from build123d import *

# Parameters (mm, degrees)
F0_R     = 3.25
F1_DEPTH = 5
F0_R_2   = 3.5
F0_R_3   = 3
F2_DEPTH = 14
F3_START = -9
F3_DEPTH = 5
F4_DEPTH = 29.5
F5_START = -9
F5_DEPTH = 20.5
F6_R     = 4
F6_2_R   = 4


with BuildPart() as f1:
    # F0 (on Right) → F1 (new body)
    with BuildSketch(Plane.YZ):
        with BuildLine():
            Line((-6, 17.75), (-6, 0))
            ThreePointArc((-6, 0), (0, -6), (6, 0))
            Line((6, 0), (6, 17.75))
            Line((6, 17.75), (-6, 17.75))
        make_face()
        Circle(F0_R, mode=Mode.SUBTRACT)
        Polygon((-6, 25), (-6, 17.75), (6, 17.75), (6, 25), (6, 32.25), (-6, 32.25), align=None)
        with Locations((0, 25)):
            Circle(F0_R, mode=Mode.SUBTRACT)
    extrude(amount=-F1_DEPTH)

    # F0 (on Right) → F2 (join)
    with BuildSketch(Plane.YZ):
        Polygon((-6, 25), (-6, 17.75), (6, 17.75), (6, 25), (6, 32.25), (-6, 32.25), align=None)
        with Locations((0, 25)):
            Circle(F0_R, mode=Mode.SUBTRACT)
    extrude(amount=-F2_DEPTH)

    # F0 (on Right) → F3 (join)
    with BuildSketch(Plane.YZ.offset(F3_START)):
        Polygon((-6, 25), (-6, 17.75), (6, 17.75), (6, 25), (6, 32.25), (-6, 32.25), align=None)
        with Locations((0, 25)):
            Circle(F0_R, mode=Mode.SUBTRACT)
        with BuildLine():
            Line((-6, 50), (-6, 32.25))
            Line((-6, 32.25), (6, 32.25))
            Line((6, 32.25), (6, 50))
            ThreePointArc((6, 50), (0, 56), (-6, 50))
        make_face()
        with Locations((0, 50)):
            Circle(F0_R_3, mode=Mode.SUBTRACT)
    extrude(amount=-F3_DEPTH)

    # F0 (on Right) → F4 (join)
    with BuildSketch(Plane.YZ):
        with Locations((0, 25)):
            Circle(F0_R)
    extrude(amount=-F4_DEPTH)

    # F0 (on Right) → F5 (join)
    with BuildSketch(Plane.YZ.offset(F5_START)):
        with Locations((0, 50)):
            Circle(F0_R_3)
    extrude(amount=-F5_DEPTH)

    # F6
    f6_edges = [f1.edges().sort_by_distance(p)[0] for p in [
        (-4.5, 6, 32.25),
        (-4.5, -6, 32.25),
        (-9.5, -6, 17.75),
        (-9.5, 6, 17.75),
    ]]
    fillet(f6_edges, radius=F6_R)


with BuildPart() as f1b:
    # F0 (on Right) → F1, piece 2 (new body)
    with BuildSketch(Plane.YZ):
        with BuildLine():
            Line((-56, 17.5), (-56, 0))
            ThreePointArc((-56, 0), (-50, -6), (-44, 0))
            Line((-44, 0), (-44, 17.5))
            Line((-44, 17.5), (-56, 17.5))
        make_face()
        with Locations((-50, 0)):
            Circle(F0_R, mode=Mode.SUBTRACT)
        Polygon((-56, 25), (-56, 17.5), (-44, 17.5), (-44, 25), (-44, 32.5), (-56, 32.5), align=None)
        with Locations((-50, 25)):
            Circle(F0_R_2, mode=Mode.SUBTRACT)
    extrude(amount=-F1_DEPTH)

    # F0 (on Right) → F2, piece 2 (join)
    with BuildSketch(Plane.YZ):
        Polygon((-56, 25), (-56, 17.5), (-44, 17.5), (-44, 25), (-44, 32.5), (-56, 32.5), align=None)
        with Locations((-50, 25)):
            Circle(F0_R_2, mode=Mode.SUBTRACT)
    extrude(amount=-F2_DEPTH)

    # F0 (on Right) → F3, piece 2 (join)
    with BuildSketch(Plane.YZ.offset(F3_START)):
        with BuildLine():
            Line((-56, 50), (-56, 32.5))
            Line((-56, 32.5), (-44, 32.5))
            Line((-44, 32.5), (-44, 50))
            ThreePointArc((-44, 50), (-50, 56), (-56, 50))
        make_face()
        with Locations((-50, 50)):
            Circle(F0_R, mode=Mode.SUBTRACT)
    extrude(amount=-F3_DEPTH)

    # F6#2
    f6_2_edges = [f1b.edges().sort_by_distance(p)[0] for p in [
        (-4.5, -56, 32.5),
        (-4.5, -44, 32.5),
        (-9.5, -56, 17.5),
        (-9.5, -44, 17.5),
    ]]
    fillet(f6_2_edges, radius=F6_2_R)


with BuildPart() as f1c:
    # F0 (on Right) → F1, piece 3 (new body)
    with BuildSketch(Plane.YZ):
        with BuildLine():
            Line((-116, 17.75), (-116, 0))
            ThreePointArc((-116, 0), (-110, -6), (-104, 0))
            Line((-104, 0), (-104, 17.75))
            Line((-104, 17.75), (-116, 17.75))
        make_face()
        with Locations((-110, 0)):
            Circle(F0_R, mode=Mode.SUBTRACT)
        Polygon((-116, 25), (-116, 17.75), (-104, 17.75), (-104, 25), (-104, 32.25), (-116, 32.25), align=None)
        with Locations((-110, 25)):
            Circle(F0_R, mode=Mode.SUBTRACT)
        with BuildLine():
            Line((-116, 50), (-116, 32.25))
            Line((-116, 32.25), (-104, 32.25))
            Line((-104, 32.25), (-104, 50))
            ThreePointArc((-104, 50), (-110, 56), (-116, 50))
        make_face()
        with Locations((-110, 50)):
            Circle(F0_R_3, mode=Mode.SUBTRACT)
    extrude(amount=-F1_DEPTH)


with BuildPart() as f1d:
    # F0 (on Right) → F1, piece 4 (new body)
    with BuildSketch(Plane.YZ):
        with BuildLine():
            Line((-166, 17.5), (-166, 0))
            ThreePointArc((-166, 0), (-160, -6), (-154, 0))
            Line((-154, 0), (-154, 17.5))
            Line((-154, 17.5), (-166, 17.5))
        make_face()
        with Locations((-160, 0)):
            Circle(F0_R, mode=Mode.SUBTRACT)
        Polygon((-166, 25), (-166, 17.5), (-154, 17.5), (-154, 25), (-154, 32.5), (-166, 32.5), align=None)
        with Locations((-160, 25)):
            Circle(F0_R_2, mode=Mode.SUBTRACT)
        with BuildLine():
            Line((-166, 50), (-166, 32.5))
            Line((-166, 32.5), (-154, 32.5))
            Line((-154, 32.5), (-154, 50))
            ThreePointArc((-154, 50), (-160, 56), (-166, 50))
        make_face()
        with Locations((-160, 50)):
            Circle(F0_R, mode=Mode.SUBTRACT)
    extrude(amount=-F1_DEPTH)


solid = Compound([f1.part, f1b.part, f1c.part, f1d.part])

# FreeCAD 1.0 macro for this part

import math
import FreeCAD as App
import Part
import Sketcher
from FreeCAD import Vector
Q = App.Units.Quantity


def edges_at(feature, points):
    """Names of the edges that pass closest to the given points."""
    edges = feature.Shape.Edges
    near = lambda p: min(range(len(edges)), key=lambda i: edges[i].distToShape(Part.Vertex(*p))[0])
    return sorted({f"Edge{near(p) + 1}" for p in points})

doc = App.newDocument("Part")
body = doc.addObject("PartDesign::Body", "Body")

# Sketch on YZ plane
sketch1 = body.newObject("Sketcher::SketchObject", "Sketch")
sketch1.AttachmentSupport = (doc.getObject("YZ_Plane"), [""])
sketch1.MapMode = "FlatFace"
sketch1.addGeometry(Part.ArcOfCircle(Part.Circle(Vector(0, 0, 0), Vector(0, 0, 1), 6), math.radians(180), math.radians(360)), False)
sketch1.addGeometry(Part.LineSegment(Vector(6, 0, 0), Vector(6, 32.2, 0)), False)
sketch1.addGeometry(Part.LineSegment(Vector(6, 32.2, 0), Vector(-6, 32.2, 0)), False)
sketch1.addGeometry(Part.LineSegment(Vector(-6, 32.2, 0), Vector(-6, 0, 0)), False)
sketch1.addGeometry(Part.Circle(Vector(0, 0, 0), Vector(0, 0, 1), 3.2), False)
sketch1.addGeometry(Part.Circle(Vector(0, 25, 0), Vector(0, 0, 1), 3.2), False)
sketch1.addConstraint(Sketcher.Constraint("Tangent", 0, 2, 1, 1))
sketch1.addConstraint(Sketcher.Constraint("Coincident", 1, 2, 2, 1))
sketch1.addConstraint(Sketcher.Constraint("Coincident", 2, 2, 3, 1))
sketch1.addConstraint(Sketcher.Constraint("Tangent", 3, 2, 0, 1))
sketch1.addConstraint(Sketcher.Constraint("Vertical", 1))
sketch1.addConstraint(Sketcher.Constraint("Horizontal", 2))
sketch1.addConstraint(Sketcher.Constraint("Vertical", 3))
sketch1.addConstraint(Sketcher.Constraint("Coincident", 0, 3, -1, 1))
sketch1.addConstraint(Sketcher.Constraint("Coincident", 4, 3, -1, 1))
sketch1.addConstraint(Sketcher.Constraint("Equal", 4, 5))
sketch1.addConstraint(Sketcher.Constraint("PointOnObject", 5, 3, -2))
sketch1.addConstraint(Sketcher.Constraint("Radius", 0, Q("6 mm")))
sketch1.addConstraint(Sketcher.Constraint("Diameter", 4, Q("6.5 mm")))
sketch1.addConstraint(Sketcher.Constraint("DistanceY", -1, 1, 5, 3, Q("25 mm")))
sketch1.addConstraint(Sketcher.Constraint("DistanceY", 1, 1, 1, 2, Q("32.25 mm")))
pad1 = body.newObject("PartDesign::Pad", "Pad")
pad1.Profile = sketch1
pad1.Length = 5
pad1.Reversed = True

# Sketch on YZ plane
sketch2 = body.newObject("Sketcher::SketchObject", "Sketch001")
sketch2.AttachmentSupport = (doc.getObject("YZ_Plane"), [""])
sketch2.MapMode = "FlatFace"
sketch2.addGeometry(Part.LineSegment(Vector(-6, 17.8, 0), Vector(6, 17.8, 0)), False)
sketch2.addGeometry(Part.LineSegment(Vector(6, 17.8, 0), Vector(6, 32.2, 0)), False)
sketch2.addGeometry(Part.LineSegment(Vector(6, 32.2, 0), Vector(-6, 32.2, 0)), False)
sketch2.addGeometry(Part.LineSegment(Vector(-6, 32.2, 0), Vector(-6, 17.8, 0)), False)
sketch2.addGeometry(Part.Circle(Vector(0, 25, 0), Vector(0, 0, 1), 3.2), False)
sketch2.addConstraint(Sketcher.Constraint("Coincident", 0, 2, 1, 1))
sketch2.addConstraint(Sketcher.Constraint("Coincident", 1, 2, 2, 1))
sketch2.addConstraint(Sketcher.Constraint("Coincident", 2, 2, 3, 1))
sketch2.addConstraint(Sketcher.Constraint("Coincident", 3, 2, 0, 1))
sketch2.addConstraint(Sketcher.Constraint("Horizontal", 0))
sketch2.addConstraint(Sketcher.Constraint("Vertical", 1))
sketch2.addConstraint(Sketcher.Constraint("Horizontal", 2))
sketch2.addConstraint(Sketcher.Constraint("Vertical", 3))
sketch2.addConstraint(Sketcher.Constraint("PointOnObject", 4, 3, -2))
sketch2.addConstraint(Sketcher.Constraint("Diameter", 4, Q("6.5 mm")))
sketch2.addConstraint(Sketcher.Constraint("DistanceX", 0, 1, 0, 2, Q("12 mm")))
sketch2.addConstraint(Sketcher.Constraint("DistanceY", 1, 1, 1, 2, Q("14.5 mm")))
sketch2.addConstraint(Sketcher.Constraint("DistanceY", -1, 1, 4, 3, Q("25 mm")))
sketch2.addConstraint(Sketcher.Constraint("DistanceX", -1, 1, 0, 2, Q("6 mm")))
sketch2.addConstraint(Sketcher.Constraint("DistanceY", -1, 1, 0, 2, Q("17.75 mm")))
pad2 = body.newObject("PartDesign::Pad", "Pad001")
pad2.Profile = sketch2
pad2.Length = 14
pad2.Reversed = True

# Sketch on YZ plane
sketch3 = body.newObject("Sketcher::SketchObject", "Sketch002")
sketch3.AttachmentSupport = (doc.getObject("YZ_Plane"), [""])
sketch3.MapMode = "FlatFace"
sketch3.AttachmentOffset = App.Placement(Vector(0, 0, -9), App.Rotation())
sketch3.addGeometry(Part.LineSegment(Vector(-6, 17.8, 0), Vector(6, 17.8, 0)), False)
sketch3.addGeometry(Part.LineSegment(Vector(6, 17.8, 0), Vector(6, 50, 0)), False)
sketch3.addGeometry(Part.ArcOfCircle(Part.Circle(Vector(0, 50, 0), Vector(0, 0, 1), 6), math.radians(0), math.radians(180)), False)
sketch3.addGeometry(Part.LineSegment(Vector(-6, 50, 0), Vector(-6, 17.8, 0)), False)
sketch3.addGeometry(Part.Circle(Vector(0, 25, 0), Vector(0, 0, 1), 3.2), False)
sketch3.addGeometry(Part.Circle(Vector(0, 50, 0), Vector(0, 0, 1), 3), False)
sketch3.addConstraint(Sketcher.Constraint("Coincident", 0, 2, 1, 1))
sketch3.addConstraint(Sketcher.Constraint("Tangent", 1, 2, 2, 1))
sketch3.addConstraint(Sketcher.Constraint("Tangent", 2, 2, 3, 1))
sketch3.addConstraint(Sketcher.Constraint("Coincident", 3, 2, 0, 1))
sketch3.addConstraint(Sketcher.Constraint("Horizontal", 0))
sketch3.addConstraint(Sketcher.Constraint("Vertical", 1))
sketch3.addConstraint(Sketcher.Constraint("Vertical", 3))
sketch3.addConstraint(Sketcher.Constraint("Coincident", 5, 3, 2, 3))
sketch3.addConstraint(Sketcher.Constraint("PointOnObject", 2, 3, -2))
sketch3.addConstraint(Sketcher.Constraint("PointOnObject", 4, 3, -2))
sketch3.addConstraint(Sketcher.Constraint("Diameter", 5, Q("6 mm")))
sketch3.addConstraint(Sketcher.Constraint("Radius", 2, Q("6 mm")))
sketch3.addConstraint(Sketcher.Constraint("Diameter", 4, Q("6.5 mm")))
sketch3.addConstraint(Sketcher.Constraint("DistanceY", -1, 1, 2, 3, Q("50 mm")))
sketch3.addConstraint(Sketcher.Constraint("DistanceY", -1, 1, 4, 3, Q("25 mm")))
sketch3.addConstraint(Sketcher.Constraint("DistanceY", 1, 1, 1, 2, Q("32.25 mm")))
pad3 = body.newObject("PartDesign::Pad", "Pad002")
pad3.Profile = sketch3
pad3.Length = 5
pad3.Reversed = True

# Sketch on YZ plane
sketch4 = body.newObject("Sketcher::SketchObject", "Sketch003")
sketch4.AttachmentSupport = (doc.getObject("YZ_Plane"), [""])
sketch4.MapMode = "FlatFace"
sketch4.addGeometry(Part.Circle(Vector(0, 25, 0), Vector(0, 0, 1), 3.2), False)
sketch4.addConstraint(Sketcher.Constraint("PointOnObject", 0, 3, -2))
sketch4.addConstraint(Sketcher.Constraint("Diameter", 0, Q("6.5 mm")))
sketch4.addConstraint(Sketcher.Constraint("DistanceY", -1, 1, 0, 3, Q("25 mm")))
pad4 = body.newObject("PartDesign::Pad", "Pad003")
pad4.Profile = sketch4
pad4.Length = 29.5
pad4.Reversed = True

# Sketch on YZ plane
sketch5 = body.newObject("Sketcher::SketchObject", "Sketch004")
sketch5.AttachmentSupport = (doc.getObject("YZ_Plane"), [""])
sketch5.MapMode = "FlatFace"
sketch5.AttachmentOffset = App.Placement(Vector(0, 0, -9), App.Rotation())
sketch5.addGeometry(Part.Circle(Vector(0, 50, 0), Vector(0, 0, 1), 3), False)
sketch5.addConstraint(Sketcher.Constraint("PointOnObject", 0, 3, -2))
sketch5.addConstraint(Sketcher.Constraint("Diameter", 0, Q("6 mm")))
sketch5.addConstraint(Sketcher.Constraint("DistanceY", -1, 1, 0, 3, Q("50 mm")))
pad5 = body.newObject("PartDesign::Pad", "Pad004")
pad5.Profile = sketch5
pad5.Length = 20.5
pad5.Reversed = True
doc.recompute()

fillet = body.newObject("PartDesign::Fillet", "Fillet")
fillet.Base = (pad5, edges_at(pad5, [
    (-4.5, 6, 32.25),
    (-4.5, -6, 32.25),
    (-9.5, -6, 17.75),
    (-9.5, 6, 17.75),
]))
fillet.Radius = 4
body2 = doc.addObject("PartDesign::Body", "Body001")

# Sketch on YZ plane
sketch6 = body2.newObject("Sketcher::SketchObject", "Sketch005")
sketch6.AttachmentSupport = (doc.getObject("YZ_Plane001"), [""])
sketch6.MapMode = "FlatFace"
sketch6.addGeometry(Part.ArcOfCircle(Part.Circle(Vector(-50, 0, 0), Vector(0, 0, 1), 6), math.radians(180), math.radians(360)), False)
sketch6.addGeometry(Part.LineSegment(Vector(-44, 0, 0), Vector(-44, 32.5, 0)), False)
sketch6.addGeometry(Part.LineSegment(Vector(-44, 32.5, 0), Vector(-56, 32.5, 0)), False)
sketch6.addGeometry(Part.LineSegment(Vector(-56, 32.5, 0), Vector(-56, 0, 0)), False)
sketch6.addGeometry(Part.Circle(Vector(-50, 0, 0), Vector(0, 0, 1), 3.2), False)
sketch6.addGeometry(Part.Circle(Vector(-50, 25, 0), Vector(0, 0, 1), 3.5), False)
sketch6.addConstraint(Sketcher.Constraint("Tangent", 0, 2, 1, 1))
sketch6.addConstraint(Sketcher.Constraint("Coincident", 1, 2, 2, 1))
sketch6.addConstraint(Sketcher.Constraint("Coincident", 2, 2, 3, 1))
sketch6.addConstraint(Sketcher.Constraint("Tangent", 3, 2, 0, 1))
sketch6.addConstraint(Sketcher.Constraint("Vertical", 1))
sketch6.addConstraint(Sketcher.Constraint("Horizontal", 2))
sketch6.addConstraint(Sketcher.Constraint("Vertical", 3))
sketch6.addConstraint(Sketcher.Constraint("Coincident", 4, 3, 0, 3))
sketch6.addConstraint(Sketcher.Constraint("PointOnObject", 0, 3, -1))
sketch6.addConstraint(Sketcher.Constraint("Vertical", 4, 3, 5, 3))
sketch6.addConstraint(Sketcher.Constraint("Diameter", 5, Q("7 mm")))
sketch6.addConstraint(Sketcher.Constraint("Radius", 0, Q("6 mm")))
sketch6.addConstraint(Sketcher.Constraint("Diameter", 4, Q("6.5 mm")))
sketch6.addConstraint(Sketcher.Constraint("DistanceY", 1, 1, 1, 2, Q("32.5 mm")))
sketch6.addConstraint(Sketcher.Constraint("DistanceX", 0, 3, -1, 1, Q("50 mm")))
sketch6.addConstraint(Sketcher.Constraint("DistanceY", -1, 1, 5, 3, Q("25 mm")))
pad6 = body2.newObject("PartDesign::Pad", "Pad005")
pad6.Profile = sketch6
pad6.Length = 5
pad6.Reversed = True

# Sketch on YZ plane
sketch7 = body2.newObject("Sketcher::SketchObject", "Sketch006")
sketch7.AttachmentSupport = (doc.getObject("YZ_Plane001"), [""])
sketch7.MapMode = "FlatFace"
sketch7.addGeometry(Part.LineSegment(Vector(-56, 17.5, 0), Vector(-44, 17.5, 0)), False)
sketch7.addGeometry(Part.LineSegment(Vector(-44, 17.5, 0), Vector(-44, 32.5, 0)), False)
sketch7.addGeometry(Part.LineSegment(Vector(-44, 32.5, 0), Vector(-56, 32.5, 0)), False)
sketch7.addGeometry(Part.LineSegment(Vector(-56, 32.5, 0), Vector(-56, 17.5, 0)), False)
sketch7.addGeometry(Part.Circle(Vector(-50, 25, 0), Vector(0, 0, 1), 3.5), False)
sketch7.addConstraint(Sketcher.Constraint("Coincident", 0, 2, 1, 1))
sketch7.addConstraint(Sketcher.Constraint("Coincident", 1, 2, 2, 1))
sketch7.addConstraint(Sketcher.Constraint("Coincident", 2, 2, 3, 1))
sketch7.addConstraint(Sketcher.Constraint("Coincident", 3, 2, 0, 1))
sketch7.addConstraint(Sketcher.Constraint("Horizontal", 0))
sketch7.addConstraint(Sketcher.Constraint("Vertical", 1))
sketch7.addConstraint(Sketcher.Constraint("Horizontal", 2))
sketch7.addConstraint(Sketcher.Constraint("Vertical", 3))
sketch7.addConstraint(Sketcher.Constraint("Diameter", 4, Q("7 mm")))
sketch7.addConstraint(Sketcher.Constraint("DistanceX", 0, 1, 0, 2, Q("12 mm")))
sketch7.addConstraint(Sketcher.Constraint("DistanceY", 1, 1, 1, 2, Q("15 mm")))
sketch7.addConstraint(Sketcher.Constraint("DistanceX", 4, 3, -1, 1, Q("50 mm")))
sketch7.addConstraint(Sketcher.Constraint("DistanceY", -1, 1, 4, 3, Q("25 mm")))
sketch7.addConstraint(Sketcher.Constraint("DistanceX", 0, 2, -1, 1, Q("44 mm")))
sketch7.addConstraint(Sketcher.Constraint("DistanceY", -1, 1, 0, 2, Q("17.5 mm")))
pad7 = body2.newObject("PartDesign::Pad", "Pad006")
pad7.Profile = sketch7
pad7.Length = 14
pad7.Reversed = True

# Sketch on YZ plane
sketch8 = body2.newObject("Sketcher::SketchObject", "Sketch007")
sketch8.AttachmentSupport = (doc.getObject("YZ_Plane001"), [""])
sketch8.MapMode = "FlatFace"
sketch8.AttachmentOffset = App.Placement(Vector(0, 0, -9), App.Rotation())
sketch8.addGeometry(Part.LineSegment(Vector(-56, 50, 0), Vector(-56, 32.5, 0)), False)
sketch8.addGeometry(Part.LineSegment(Vector(-56, 32.5, 0), Vector(-44, 32.5, 0)), False)
sketch8.addGeometry(Part.LineSegment(Vector(-44, 32.5, 0), Vector(-44, 50, 0)), False)
sketch8.addGeometry(Part.ArcOfCircle(Part.Circle(Vector(-50, 50, 0), Vector(0, 0, 1), 6), math.radians(0), math.radians(180)), False)
sketch8.addGeometry(Part.Circle(Vector(-50, 50, 0), Vector(0, 0, 1), 3.2), False)
sketch8.addConstraint(Sketcher.Constraint("Coincident", 0, 2, 1, 1))
sketch8.addConstraint(Sketcher.Constraint("Coincident", 1, 2, 2, 1))
sketch8.addConstraint(Sketcher.Constraint("Tangent", 2, 2, 3, 1))
sketch8.addConstraint(Sketcher.Constraint("Tangent", 3, 2, 0, 1))
sketch8.addConstraint(Sketcher.Constraint("Vertical", 0))
sketch8.addConstraint(Sketcher.Constraint("Horizontal", 1))
sketch8.addConstraint(Sketcher.Constraint("Vertical", 2))
sketch8.addConstraint(Sketcher.Constraint("Coincident", 4, 3, 3, 3))
sketch8.addConstraint(Sketcher.Constraint("Radius", 3, Q("6 mm")))
sketch8.addConstraint(Sketcher.Constraint("Diameter", 4, Q("6.5 mm")))
sketch8.addConstraint(Sketcher.Constraint("DistanceY", 0, 2, 0, 1, Q("17.5 mm")))
sketch8.addConstraint(Sketcher.Constraint("DistanceX", 3, 3, -1, 1, Q("50 mm")))
sketch8.addConstraint(Sketcher.Constraint("DistanceY", -1, 1, 3, 3, Q("50 mm")))
pad8 = body2.newObject("PartDesign::Pad", "Pad007")
pad8.Profile = sketch8
pad8.Length = 5
pad8.Reversed = True
doc.recompute()

fillet2 = body2.newObject("PartDesign::Fillet", "Fillet001")
fillet2.Base = (pad8, edges_at(pad8, [
    (-4.5, -56, 32.5),
    (-4.5, -44, 32.5),
    (-9.5, -56, 17.5),
    (-9.5, -44, 17.5),
]))
fillet2.Radius = 4
body3 = doc.addObject("PartDesign::Body", "Body002")

# Sketch on YZ plane
sketch9 = body3.newObject("Sketcher::SketchObject", "Sketch008")
sketch9.AttachmentSupport = (doc.getObject("YZ_Plane002"), [""])
sketch9.MapMode = "FlatFace"
sketch9.addGeometry(Part.ArcOfCircle(Part.Circle(Vector(-110, 0, 0), Vector(0, 0, 1), 6), math.radians(180), math.radians(360)), False)
sketch9.addGeometry(Part.LineSegment(Vector(-104, 0, 0), Vector(-104, 50, 0)), False)
sketch9.addGeometry(Part.ArcOfCircle(Part.Circle(Vector(-110, 50, 0), Vector(0, 0, 1), 6), math.radians(0), math.radians(180)), False)
sketch9.addGeometry(Part.LineSegment(Vector(-116, 50, 0), Vector(-116, 0, 0)), False)
sketch9.addGeometry(Part.Circle(Vector(-110, 0, 0), Vector(0, 0, 1), 3.2), False)
sketch9.addGeometry(Part.Circle(Vector(-110, 25, 0), Vector(0, 0, 1), 3.2), False)
sketch9.addGeometry(Part.Circle(Vector(-110, 50, 0), Vector(0, 0, 1), 3), False)
sketch9.addConstraint(Sketcher.Constraint("Tangent", 0, 2, 1, 1))
sketch9.addConstraint(Sketcher.Constraint("Tangent", 1, 2, 2, 1))
sketch9.addConstraint(Sketcher.Constraint("Tangent", 2, 2, 3, 1))
sketch9.addConstraint(Sketcher.Constraint("Tangent", 3, 2, 0, 1))
sketch9.addConstraint(Sketcher.Constraint("Vertical", 1))
sketch9.addConstraint(Sketcher.Constraint("Vertical", 3))
sketch9.addConstraint(Sketcher.Constraint("Coincident", 4, 3, 0, 3))
sketch9.addConstraint(Sketcher.Constraint("Coincident", 6, 3, 2, 3))
sketch9.addConstraint(Sketcher.Constraint("Equal", 4, 5))
sketch9.addConstraint(Sketcher.Constraint("PointOnObject", 0, 3, -1))
sketch9.addConstraint(Sketcher.Constraint("Vertical", 4, 3, 5, 3))
sketch9.addConstraint(Sketcher.Constraint("Diameter", 6, Q("6 mm")))
sketch9.addConstraint(Sketcher.Constraint("Radius", 0, Q("6 mm")))
sketch9.addConstraint(Sketcher.Constraint("Diameter", 4, Q("6.5 mm")))
sketch9.addConstraint(Sketcher.Constraint("DistanceY", 1, 1, 1, 2, Q("50 mm")))
sketch9.addConstraint(Sketcher.Constraint("DistanceX", 0, 3, -1, 1, Q("110 mm")))
sketch9.addConstraint(Sketcher.Constraint("DistanceY", -1, 1, 5, 3, Q("25 mm")))
pad9 = body3.newObject("PartDesign::Pad", "Pad008")
pad9.Profile = sketch9
pad9.Length = 5
pad9.Reversed = True
body4 = doc.addObject("PartDesign::Body", "Body003")

# Sketch on YZ plane
sketch10 = body4.newObject("Sketcher::SketchObject", "Sketch009")
sketch10.AttachmentSupport = (doc.getObject("YZ_Plane003"), [""])
sketch10.MapMode = "FlatFace"
sketch10.addGeometry(Part.ArcOfCircle(Part.Circle(Vector(-160, 0, 0), Vector(0, 0, 1), 6), math.radians(180), math.radians(360)), False)
sketch10.addGeometry(Part.LineSegment(Vector(-154, 0, 0), Vector(-154, 50, 0)), False)
sketch10.addGeometry(Part.ArcOfCircle(Part.Circle(Vector(-160, 50, 0), Vector(0, 0, 1), 6), math.radians(0), math.radians(180)), False)
sketch10.addGeometry(Part.LineSegment(Vector(-166, 50, 0), Vector(-166, 0, 0)), False)
sketch10.addGeometry(Part.Circle(Vector(-160, 0, 0), Vector(0, 0, 1), 3.2), False)
sketch10.addGeometry(Part.Circle(Vector(-160, 25, 0), Vector(0, 0, 1), 3.5), False)
sketch10.addGeometry(Part.Circle(Vector(-160, 50, 0), Vector(0, 0, 1), 3.2), False)
sketch10.addConstraint(Sketcher.Constraint("Tangent", 0, 2, 1, 1))
sketch10.addConstraint(Sketcher.Constraint("Tangent", 1, 2, 2, 1))
sketch10.addConstraint(Sketcher.Constraint("Tangent", 2, 2, 3, 1))
sketch10.addConstraint(Sketcher.Constraint("Tangent", 3, 2, 0, 1))
sketch10.addConstraint(Sketcher.Constraint("Vertical", 1))
sketch10.addConstraint(Sketcher.Constraint("Vertical", 3))
sketch10.addConstraint(Sketcher.Constraint("Coincident", 4, 3, 0, 3))
sketch10.addConstraint(Sketcher.Constraint("Coincident", 6, 3, 2, 3))
sketch10.addConstraint(Sketcher.Constraint("Equal", 4, 6))
sketch10.addConstraint(Sketcher.Constraint("PointOnObject", 0, 3, -1))
sketch10.addConstraint(Sketcher.Constraint("Vertical", 4, 3, 5, 3))
sketch10.addConstraint(Sketcher.Constraint("Diameter", 5, Q("7 mm")))
sketch10.addConstraint(Sketcher.Constraint("Radius", 0, Q("6 mm")))
sketch10.addConstraint(Sketcher.Constraint("Diameter", 4, Q("6.5 mm")))
sketch10.addConstraint(Sketcher.Constraint("DistanceY", 1, 1, 1, 2, Q("50 mm")))
sketch10.addConstraint(Sketcher.Constraint("DistanceX", 0, 3, -1, 1, Q("160 mm")))
sketch10.addConstraint(Sketcher.Constraint("DistanceY", -1, 1, 5, 3, Q("25 mm")))
pad10 = body4.newObject("PartDesign::Pad", "Pad009")
pad10.Profile = sketch10
pad10.Length = 5
pad10.Reversed = True

doc.recompute()
